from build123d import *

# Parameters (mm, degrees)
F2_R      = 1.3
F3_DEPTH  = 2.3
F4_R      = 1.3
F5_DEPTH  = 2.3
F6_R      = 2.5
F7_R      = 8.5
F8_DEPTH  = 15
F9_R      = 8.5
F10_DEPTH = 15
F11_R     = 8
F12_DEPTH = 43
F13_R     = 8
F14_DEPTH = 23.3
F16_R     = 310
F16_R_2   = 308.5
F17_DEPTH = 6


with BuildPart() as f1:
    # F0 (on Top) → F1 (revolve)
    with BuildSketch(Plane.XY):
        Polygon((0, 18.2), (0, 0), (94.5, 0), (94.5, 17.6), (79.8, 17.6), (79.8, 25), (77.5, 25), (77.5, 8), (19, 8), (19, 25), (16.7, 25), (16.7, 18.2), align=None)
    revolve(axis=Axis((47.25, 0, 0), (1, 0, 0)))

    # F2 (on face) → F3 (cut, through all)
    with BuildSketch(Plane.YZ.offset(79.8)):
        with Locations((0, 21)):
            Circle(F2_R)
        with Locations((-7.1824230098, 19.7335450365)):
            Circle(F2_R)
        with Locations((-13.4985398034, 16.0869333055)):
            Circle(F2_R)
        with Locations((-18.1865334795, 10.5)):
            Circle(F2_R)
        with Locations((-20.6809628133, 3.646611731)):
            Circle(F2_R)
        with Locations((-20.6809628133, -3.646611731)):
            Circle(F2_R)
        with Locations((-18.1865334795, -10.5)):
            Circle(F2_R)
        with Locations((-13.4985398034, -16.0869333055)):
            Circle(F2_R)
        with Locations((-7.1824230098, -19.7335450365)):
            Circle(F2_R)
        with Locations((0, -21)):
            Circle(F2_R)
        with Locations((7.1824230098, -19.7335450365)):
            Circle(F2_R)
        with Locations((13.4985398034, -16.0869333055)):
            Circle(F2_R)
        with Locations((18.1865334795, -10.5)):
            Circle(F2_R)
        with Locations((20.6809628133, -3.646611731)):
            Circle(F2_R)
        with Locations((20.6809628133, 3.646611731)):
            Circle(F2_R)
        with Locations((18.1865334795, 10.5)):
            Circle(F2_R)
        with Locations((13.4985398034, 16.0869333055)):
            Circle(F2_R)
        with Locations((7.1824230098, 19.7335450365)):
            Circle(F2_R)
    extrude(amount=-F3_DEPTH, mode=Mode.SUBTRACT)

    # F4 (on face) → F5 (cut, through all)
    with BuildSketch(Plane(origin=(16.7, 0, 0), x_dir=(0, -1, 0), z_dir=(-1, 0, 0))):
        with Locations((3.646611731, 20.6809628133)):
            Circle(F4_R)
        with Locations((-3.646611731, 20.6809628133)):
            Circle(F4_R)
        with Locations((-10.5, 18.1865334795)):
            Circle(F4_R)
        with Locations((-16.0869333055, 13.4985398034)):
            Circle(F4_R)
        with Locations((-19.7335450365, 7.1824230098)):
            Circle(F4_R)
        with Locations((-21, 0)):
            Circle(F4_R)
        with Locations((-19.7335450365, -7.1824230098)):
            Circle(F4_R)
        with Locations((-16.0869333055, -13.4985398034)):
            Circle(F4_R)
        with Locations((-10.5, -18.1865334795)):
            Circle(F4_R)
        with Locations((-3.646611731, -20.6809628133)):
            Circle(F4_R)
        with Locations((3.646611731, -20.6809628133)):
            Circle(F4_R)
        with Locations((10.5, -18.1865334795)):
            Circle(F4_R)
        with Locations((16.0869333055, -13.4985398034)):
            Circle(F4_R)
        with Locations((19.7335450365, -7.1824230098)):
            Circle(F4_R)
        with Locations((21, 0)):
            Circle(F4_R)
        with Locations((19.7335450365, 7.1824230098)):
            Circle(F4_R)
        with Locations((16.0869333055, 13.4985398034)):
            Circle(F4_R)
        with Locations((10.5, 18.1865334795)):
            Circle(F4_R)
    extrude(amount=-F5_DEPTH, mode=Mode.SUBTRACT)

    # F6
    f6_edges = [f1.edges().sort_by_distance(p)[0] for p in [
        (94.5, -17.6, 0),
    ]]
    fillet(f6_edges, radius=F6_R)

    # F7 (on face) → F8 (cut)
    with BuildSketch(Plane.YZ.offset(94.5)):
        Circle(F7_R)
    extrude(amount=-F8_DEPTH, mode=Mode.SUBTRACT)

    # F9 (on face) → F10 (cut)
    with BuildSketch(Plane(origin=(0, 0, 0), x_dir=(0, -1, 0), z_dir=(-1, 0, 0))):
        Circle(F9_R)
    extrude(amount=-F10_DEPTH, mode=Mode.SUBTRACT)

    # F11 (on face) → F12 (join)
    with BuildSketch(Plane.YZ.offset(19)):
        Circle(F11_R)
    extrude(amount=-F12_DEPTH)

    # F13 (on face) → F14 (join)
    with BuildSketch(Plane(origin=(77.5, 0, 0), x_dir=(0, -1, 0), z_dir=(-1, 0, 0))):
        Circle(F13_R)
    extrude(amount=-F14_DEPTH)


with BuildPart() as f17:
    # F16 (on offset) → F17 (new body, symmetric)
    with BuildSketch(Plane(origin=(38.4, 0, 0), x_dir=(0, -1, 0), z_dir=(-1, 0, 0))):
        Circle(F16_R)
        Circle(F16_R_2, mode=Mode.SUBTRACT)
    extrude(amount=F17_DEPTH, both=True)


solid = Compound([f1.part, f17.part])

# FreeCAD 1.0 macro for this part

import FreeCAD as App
import Part
import Sketcher
from FreeCAD import Vector
Q = App.Units.Quantity


def edges_at(feature, points):
    """Names of the edges that pass closest to the given points."""
    edges = feature.Shape.Edges
    near = lambda p: min(range(len(edges)), key=lambda i: edges[i].distToShape(Part.Vertex(*p))[0])
    return sorted({f"Edge{near(p) + 1}" for p in points})


def add_polygon(sketch, points):
    """Adds a closed chain of lines whose ends are joined by coincident constraints."""
    first, n = sketch.GeometryCount, len(points)
    for a, b in zip(points, points[1:] + points[:1]):
        sketch.addGeometry(Part.LineSegment(App.Vector(*a, 0), App.Vector(*b, 0)), False)
    for i in range(n):
        sketch.addConstraint(Sketcher.Constraint("Coincident", first + i, 2, first + (i + 1) % n, 1))

doc = App.newDocument("Part")
body = doc.addObject("PartDesign::Body", "Body")

# Sketch on XY plane
sketch1 = body.newObject("Sketcher::SketchObject", "Sketch")
sketch1.AttachmentSupport = (doc.getObject("XY_Plane"), [""])
sketch1.MapMode = "FlatFace"
add_polygon(sketch1, [(0, 18.2), (0, 0), (94.5, 0), (94.5, 17.6), (79.8, 17.6), (79.8, 25), (77.5, 25), (77.5, 8), (19, 8), (19, 25), (16.7, 25), (16.7, 18.2)])  # lines 0-11
sketch1.addConstraint(Sketcher.Constraint("Vertical", 0))
sketch1.addConstraint(Sketcher.Constraint("Horizontal", 1))
sketch1.addConstraint(Sketcher.Constraint("Vertical", 2))
sketch1.addConstraint(Sketcher.Constraint("Horizontal", 3))
sketch1.addConstraint(Sketcher.Constraint("Vertical", 4))
sketch1.addConstraint(Sketcher.Constraint("Horizontal", 5))
sketch1.addConstraint(Sketcher.Constraint("Vertical", 6))
sketch1.addConstraint(Sketcher.Constraint("Horizontal", 7))
sketch1.addConstraint(Sketcher.Constraint("Vertical", 8))
sketch1.addConstraint(Sketcher.Constraint("Horizontal", 9))
sketch1.addConstraint(Sketcher.Constraint("Vertical", 10))
sketch1.addConstraint(Sketcher.Constraint("Horizontal", 11))
sketch1.addConstraint(Sketcher.Constraint("Coincident", 0, 2, -1, 1))
sketch1.addConstraint(Sketcher.Constraint("Horizontal", 5, 2, 8, 2))
sketch1.addConstraint(Sketcher.Constraint("Equal", 5, 9))
sketch1.addConstraint(Sketcher.Constraint("DistanceY", 6, 2, 6, 1, Q("17 mm")))
sketch1.addConstraint(Sketcher.Constraint("DistanceX", 1, 1, 1, 2, Q("94.5 mm")))
sketch1.addConstraint(Sketcher.Constraint("DistanceX", 3, 2, 3, 1, Q("14.7 mm")))
sketch1.addConstraint(Sketcher.Constraint("DistanceX", 5, 2, 5, 1, Q("2.3 mm")))
sketch1.addConstraint(Sketcher.Constraint("DistanceX", 7, 2, 7, 1, Q("58.5 mm")))
sketch1.addConstraint(Sketcher.Constraint("DistanceY", 0, 2, 0, 1, Q("18.2 mm")))
sketch1.addConstraint(Sketcher.Constraint("DistanceY", 2, 1, 2, 2, Q("17.6 mm")))
sketch1.addConstraint(Sketcher.Constraint("DistanceY", 4, 1, 4, 2, Q("7.4 mm")))
revolution = body.newObject("PartDesign::Revolution", "Revolution")
revolution.Profile = sketch1
revolution.ReferenceAxis = (sketch1, ["H_Axis"])
revolution.Angle = 360

# Sketch on YZ plane
sketch2 = body.newObject("Sketcher::SketchObject", "Sketch001")
sketch2.AttachmentSupport = (doc.getObject("YZ_Plane"), [""])
sketch2.MapMode = "FlatFace"
sketch2.AttachmentOffset = App.Placement(Vector(0, 0, 79.8), App.Rotation())
sketch2.addGeometry(Part.Circle(Vector(0, 21, 0), Vector(0, 0, 1), 1.3), False)
sketch2.addGeometry(Part.Circle(Vector(-7.2, 19.7, 0), Vector(0, 0, 1), 1.3), False)
sketch2.addGeometry(Part.Circle(Vector(-13.5, 16.1, 0), Vector(0, 0, 1), 1.3), False)
sketch2.addGeometry(Part.Circle(Vector(-18.2, 10.5, 0), Vector(0, 0, 1), 1.3), False)
sketch2.addGeometry(Part.Circle(Vector(-20.7, 3.6, 0), Vector(0, 0, 1), 1.3), False)
sketch2.addGeometry(Part.Circle(Vector(-20.7, -3.6, 0), Vector(0, 0, 1), 1.3), False)
sketch2.addGeometry(Part.Circle(Vector(-18.2, -10.5, 0), Vector(0, 0, 1), 1.3), False)
sketch2.addGeometry(Part.Circle(Vector(-13.5, -16.1, 0), Vector(0, 0, 1), 1.3), False)
sketch2.addGeometry(Part.Circle(Vector(-7.2, -19.7, 0), Vector(0, 0, 1), 1.3), False)
sketch2.addGeometry(Part.Circle(Vector(0, -21, 0), Vector(0, 0, 1), 1.3), False)
sketch2.addGeometry(Part.Circle(Vector(7.2, -19.7, 0), Vector(0, 0, 1), 1.3), False)
sketch2.addGeometry(Part.Circle(Vector(13.5, -16.1, 0), Vector(0, 0, 1), 1.3), False)
sketch2.addGeometry(Part.Circle(Vector(18.2, -10.5, 0), Vector(0, 0, 1), 1.3), False)
sketch2.addGeometry(Part.Circle(Vector(20.7, -3.6, 0), Vector(0, 0, 1), 1.3), False)
sketch2.addGeometry(Part.Circle(Vector(20.7, 3.6, 0), Vector(0, 0, 1), 1.3), False)
sketch2.addGeometry(Part.Circle(Vector(18.2, 10.5, 0), Vector(0, 0, 1), 1.3), False)
sketch2.addGeometry(Part.Circle(Vector(13.5, 16.1, 0), Vector(0, 0, 1), 1.3), False)
sketch2.addGeometry(Part.Circle(Vector(7.2, 19.7, 0), Vector(0, 0, 1), 1.3), False)
sketch2.addConstraint(Sketcher.Constraint("Equal", 0, 1))
sketch2.addConstraint(Sketcher.Constraint("Equal", 1, 2))
sketch2.addConstraint(Sketcher.Constraint("Equal", 2, 3))
sketch2.addConstraint(Sketcher.Constraint("Equal", 3, 4))
sketch2.addConstraint(Sketcher.Constraint("Equal", 4, 5))
sketch2.addConstraint(Sketcher.Constraint("Equal", 5, 6))
sketch2.addConstraint(Sketcher.Constraint("Equal", 6, 7))
sketch2.addConstraint(Sketcher.Constraint("Equal", 7, 8))
sketch2.addConstraint(Sketcher.Constraint("Equal", 8, 9))
sketch2.addConstraint(Sketcher.Constraint("Equal", 9, 10))
sketch2.addConstraint(Sketcher.Constraint("Equal", 10, 11))
sketch2.addConstraint(Sketcher.Constraint("Equal", 11, 12))
sketch2.addConstraint(Sketcher.Constraint("Equal", 12, 13))
sketch2.addConstraint(Sketcher.Constraint("Equal", 13, 14))
sketch2.addConstraint(Sketcher.Constraint("Equal", 14, 15))
sketch2.addConstraint(Sketcher.Constraint("Equal", 15, 16))
sketch2.addConstraint(Sketcher.Constraint("Equal", 16, 17))
sketch2.addConstraint(Sketcher.Constraint("Symmetric", 0, 3, 9, 3, -1, 1))
sketch2.addConstraint(Sketcher.Constraint("Symmetric", 1, 3, 10, 3, -1, 1))
sketch2.addConstraint(Sketcher.Constraint("Symmetric", 2, 3, 11, 3, -1, 1))
sketch2.addConstraint(Sketcher.Constraint("Symmetric", 3, 3, 12, 3, -1, 1))
sketch2.addConstraint(Sketcher.Constraint("Symmetric", 4, 3, 13, 3, -1, 1))
sketch2.addConstraint(Sketcher.Constraint("Symmetric", 5, 3, 14, 3, -1, 1))
sketch2.addConstraint(Sketcher.Constraint("Symmetric", 6, 3, 15, 3, -1, 1))
sketch2.addConstraint(Sketcher.Constraint("Symmetric", 7, 3, 16, 3, -1, 1))
sketch2.addConstraint(Sketcher.Constraint("Symmetric", 8, 3, 17, 3, -1, 1))
sketch2.addConstraint(Sketcher.Constraint("Symmetric", 8, 3, 10, 3, -2))
sketch2.addConstraint(Sketcher.Constraint("Symmetric", 7, 3, 11, 3, -2))
sketch2.addConstraint(Sketcher.Constraint("Symmetric", 6, 3, 12, 3, -2))
sketch2.addConstraint(Sketcher.Constraint("Symmetric", 5, 3, 13, 3, -2))
sketch2.addConstraint(Sketcher.Constraint("PointOnObject", 0, 3, -2))
sketch2.addConstraint(Sketcher.Constraint("Diameter", 0, Q("2.6 mm")))
sketch2.addConstraint(Sketcher.Constraint("DistanceY", -1, 1, 0, 3, Q("21 mm")))
sketch2.addConstraint(Sketcher.Constraint("DistanceY", 6, 3, 3, 3, Q("21 mm")))
sketch2.addConstraint(Sketcher.Constraint("DistanceX", 2, 3, -1, 1, Q("13.49854 mm")))
sketch2.addConstraint(Sketcher.Constraint("DistanceY", -1, 1, 4, 3, Q("3.646612 mm")))
sketch2.addConstraint(Sketcher.Constraint("DistanceY", 2, 3, 1, 3, Q("3.646612 mm")))
sketch2.addConstraint(Sketcher.Constraint("DistanceX", 3, 3, 1, 3, Q("11.00411 mm")))
sketch2.addConstraint(Sketcher.Constraint("DistanceX", 4, 3, 3, 3, Q("2.494429 mm")))
sketch2.addConstraint(Sketcher.Constraint("DistanceY", 4, 3, 2, 3, Q("12.440322 mm")))
sketch2.addConstraint(Sketcher.Constraint("DistanceX", 1, 3, -1, 1, Q("7.182423 mm")))
pocket1 = body.newObject("PartDesign::Pocket", "Pocket")
pocket1.Profile = sketch2
pocket1.Length = 2.3

# Sketch on YZ plane
sketch3 = body.newObject("Sketcher::SketchObject", "Sketch002")
sketch3.AttachmentSupport = (doc.getObject("YZ_Plane"), [""])
sketch3.MapMode = "FlatFace"
sketch3.AttachmentOffset = App.Placement(Vector(0, 0, 16.7), App.Rotation())
sketch3.addGeometry(Part.Circle(Vector(-3.6, 20.7, 0), Vector(0, 0, 1), 1.3), False)
sketch3.addGeometry(Part.Circle(Vector(3.6, 20.7, 0), Vector(0, 0, 1), 1.3), False)
sketch3.addGeometry(Part.Circle(Vector(10.5, 18.2, 0), Vector(0, 0, 1), 1.3), False)
sketch3.addGeometry(Part.Circle(Vector(16.1, 13.5, 0), Vector(0, 0, 1), 1.3), False)
sketch3.addGeometry(Part.Circle(Vector(19.7, 7.2, 0), Vector(0, 0, 1), 1.3), False)
sketch3.addGeometry(Part.Circle(Vector(21, 0, 0), Vector(0, 0, 1), 1.3), False)
sketch3.addGeometry(Part.Circle(Vector(19.7, -7.2, 0), Vector(0, 0, 1), 1.3), False)
sketch3.addGeometry(Part.Circle(Vector(16.1, -13.5, 0), Vector(0, 0, 1), 1.3), False)
sketch3.addGeometry(Part.Circle(Vector(10.5, -18.2, 0), Vector(0, 0, 1), 1.3), False)
sketch3.addGeometry(Part.Circle(Vector(3.6, -20.7, 0), Vector(0, 0, 1), 1.3), False)
sketch3.addGeometry(Part.Circle(Vector(-3.6, -20.7, 0), Vector(0, 0, 1), 1.3), False)
sketch3.addGeometry(Part.Circle(Vector(-10.5, -18.2, 0), Vector(0, 0, 1), 1.3), False)
sketch3.addGeometry(Part.Circle(Vector(-16.1, -13.5, 0), Vector(0, 0, 1), 1.3), False)
sketch3.addGeometry(Part.Circle(Vector(-19.7, -7.2, 0), Vector(0, 0, 1), 1.3), False)
sketch3.addGeometry(Part.Circle(Vector(-21, 0, 0), Vector(0, 0, 1), 1.3), False)
sketch3.addGeometry(Part.Circle(Vector(-19.7, 7.2, 0), Vector(0, 0, 1), 1.3), False)
sketch3.addGeometry(Part.Circle(Vector(-16.1, 13.5, 0), Vector(0, 0, 1), 1.3), False)
sketch3.addGeometry(Part.Circle(Vector(-10.5, 18.2, 0), Vector(0, 0, 1), 1.3), False)
sketch3.addConstraint(Sketcher.Constraint("Equal", 0, 1))
sketch3.addConstraint(Sketcher.Constraint("Equal", 1, 2))
sketch3.addConstraint(Sketcher.Constraint("Equal", 2, 3))
sketch3.addConstraint(Sketcher.Constraint("Equal", 3, 4))
sketch3.addConstraint(Sketcher.Constraint("Equal", 4, 5))
sketch3.addConstraint(Sketcher.Constraint("Equal", 5, 6))
sketch3.addConstraint(Sketcher.Constraint("Equal", 6, 7))
sketch3.addConstraint(Sketcher.Constraint("Equal", 7, 8))
sketch3.addConstraint(Sketcher.Constraint("Equal", 8, 9))
sketch3.addConstraint(Sketcher.Constraint("Equal", 9, 10))
sketch3.addConstraint(Sketcher.Constraint("Equal", 10, 11))
sketch3.addConstraint(Sketcher.Constraint("Equal", 11, 12))
sketch3.addConstraint(Sketcher.Constraint("Equal", 12, 13))
sketch3.addConstraint(Sketcher.Constraint("Equal", 13, 14))
sketch3.addConstraint(Sketcher.Constraint("Equal", 14, 15))
sketch3.addConstraint(Sketcher.Constraint("Equal", 15, 16))
sketch3.addConstraint(Sketcher.Constraint("Equal", 16, 17))
sketch3.addConstraint(Sketcher.Constraint("Symmetric", 0, 3, 9, 3, -1, 1))
sketch3.addConstraint(Sketcher.Constraint("Symmetric", 1, 3, 10, 3, -1, 1))
sketch3.addConstraint(Sketcher.Constraint("Symmetric", 2, 3, 11, 3, -1, 1))
sketch3.addConstraint(Sketcher.Constraint("Symmetric", 3, 3, 12, 3, -1, 1))
sketch3.addConstraint(Sketcher.Constraint("Symmetric", 4, 3, 13, 3, -1, 1))
sketch3.addConstraint(Sketcher.Constraint("Symmetric", 5, 3, 14, 3, -1, 1))
sketch3.addConstraint(Sketcher.Constraint("Symmetric", 6, 3, 15, 3, -1, 1))
sketch3.addConstraint(Sketcher.Constraint("Symmetric", 7, 3, 16, 3, -1, 1))
sketch3.addConstraint(Sketcher.Constraint("Symmetric", 8, 3, 17, 3, -1, 1))
sketch3.addConstraint(Sketcher.Constraint("Symmetric", 0, 3, 1, 3, -2))
sketch3.addConstraint(Sketcher.Constraint("Symmetric", 8, 3, 11, 3, -2))
sketch3.addConstraint(Sketcher.Constraint("Symmetric", 7, 3, 12, 3, -2))
sketch3.addConstraint(Sketcher.Constraint("Symmetric", 6, 3, 13, 3, -2))
sketch3.addConstraint(Sketcher.Constraint("PointOnObject", 5, 3, -1))
sketch3.addConstraint(Sketcher.Constraint("Diameter", 0, Q("2.6 mm")))
sketch3.addConstraint(Sketcher.Constraint("DistanceX", -1, 1, 5, 3, Q("21 mm")))
sketch3.addConstraint(Sketcher.Constraint("DistanceX", 11, 3, 8, 3, Q("21 mm")))
sketch3.addConstraint(Sketcher.Constraint("DistanceX", 0, 3, -1, 1, Q("3.646612 mm")))
sketch3.addConstraint(Sketcher.Constraint("DistanceY", -1, 1, 3, 3, Q("13.49854 mm")))
sketch3.addConstraint(Sketcher.Constraint("DistanceY", 2, 3, 1, 3, Q("2.494429 mm")))
sketch3.addConstraint(Sketcher.Constraint("DistanceX", 1, 3, 3, 3, Q("12.440322 mm")))
sketch3.addConstraint(Sketcher.Constraint("DistanceX", 3, 3, 4, 3, Q("3.646612 mm")))
sketch3.addConstraint(Sketcher.Constraint("DistanceY", 4, 3, 2, 3, Q("11.00411 mm")))
sketch3.addConstraint(Sketcher.Constraint("DistanceY", -1, 1, 0, 3, Q("20.680963 mm")))
pocket2 = body.newObject("PartDesign::Pocket", "Pocket001")
pocket2.Profile = sketch3
pocket2.Length = 2.3
pocket2.Reversed = True
doc.recompute()

fillet = body.newObject("PartDesign::Fillet", "Fillet")
fillet.Base = (pocket2, edges_at(pocket2, [(94.5, -17.6, 0)]))
fillet.Radius = 2.5

# Sketch on YZ plane
sketch4 = body.newObject("Sketcher::SketchObject", "Sketch003")
sketch4.AttachmentSupport = (doc.getObject("YZ_Plane"), [""])
sketch4.MapMode = "FlatFace"
sketch4.AttachmentOffset = App.Placement(Vector(0, 0, 94.5), App.Rotation())
sketch4.addGeometry(Part.Circle(Vector(0, 0, 0), Vector(0, 0, 1), 8), False)
sketch4.addConstraint(Sketcher.Constraint("Coincident", 0, 3, -1, 1))
sketch4.addConstraint(Sketcher.Constraint("Diameter", 0, Q("17 mm")))
pocket3 = body.newObject("PartDesign::Pocket", "Pocket002")
pocket3.Profile = sketch4
pocket3.Length = 15

# Sketch on YZ plane
sketch5 = body.newObject("Sketcher::SketchObject", "Sketch004")
sketch5.AttachmentSupport = (doc.getObject("YZ_Plane"), [""])
sketch5.MapMode = "FlatFace"
sketch5.addGeometry(Part.Circle(Vector(0, 0, 0), Vector(0, 0, 1), 8), False)
sketch5.addConstraint(Sketcher.Constraint("Coincident", 0, 3, -1, 1))
sketch5.addConstraint(Sketcher.Constraint("Diameter", 0, Q("17 mm")))
pocket4 = body.newObject("PartDesign::Pocket", "Pocket003")
pocket4.Profile = sketch5
pocket4.Length = 15
pocket4.Reversed = True

# Sketch on YZ plane
sketch6 = body.newObject("Sketcher::SketchObject", "Sketch005")
sketch6.AttachmentSupport = (doc.getObject("YZ_Plane"), [""])
sketch6.MapMode = "FlatFace"
sketch6.AttachmentOffset = App.Placement(Vector(0, 0, 19), App.Rotation())
sketch6.addGeometry(Part.Circle(Vector(0, 0, 0), Vector(0, 0, 1), 8), False)
sketch6.addConstraint(Sketcher.Constraint("Coincident", 0, 3, -1, 1))
sketch6.addConstraint(Sketcher.Constraint("Diameter", 0, Q("16 mm")))
pad1 = body.newObject("PartDesign::Pad", "Pad")
pad1.Profile = sketch6
pad1.Length = 43
pad1.Reversed = True

# Sketch on YZ plane
sketch7 = body.newObject("Sketcher::SketchObject", "Sketch006")
sketch7.AttachmentSupport = (doc.getObject("YZ_Plane"), [""])
sketch7.MapMode = "FlatFace"
sketch7.AttachmentOffset = App.Placement(Vector(0, 0, 77.5), App.Rotation())
sketch7.addGeometry(Part.Circle(Vector(0, 0, 0), Vector(0, 0, 1), 8), False)
sketch7.addConstraint(Sketcher.Constraint("Coincident", 0, 3, -1, 1))
sketch7.addConstraint(Sketcher.Constraint("Diameter", 0, Q("16 mm")))
pad2 = body.newObject("PartDesign::Pad", "Pad001")
pad2.Profile = sketch7
pad2.Length = 23.3
body2 = doc.addObject("PartDesign::Body", "Body001")

# Sketch on YZ plane
sketch8 = body2.newObject("Sketcher::SketchObject", "Sketch007")
sketch8.AttachmentSupport = (doc.getObject("YZ_Plane001"), [""])
sketch8.MapMode = "FlatFace"
sketch8.AttachmentOffset = App.Placement(Vector(0, 0, 38.4), App.Rotation())
sketch8.addGeometry(Part.Circle(Vector(0, 0, 0), Vector(0, 0, 1), 310), False)
sketch8.addGeometry(Part.Circle(Vector(0, 0, 0), Vector(0, 0, 1), 308), False)
sketch8.addConstraint(Sketcher.Constraint("Coincident", 0, 3, -1, 1))
sketch8.addConstraint(Sketcher.Constraint("Coincident", 1, 3, -1, 1))
sketch8.addConstraint(Sketcher.Constraint("Diameter", 0, Q("620 mm")))
sketch8.addConstraint(Sketcher.Constraint("Diameter", 1, Q("617 mm")))
pad3 = body2.newObject("PartDesign::Pad", "Pad002")
pad3.Profile = sketch8
pad3.Length = 12
pad3.Midplane = True

doc.recompute()
